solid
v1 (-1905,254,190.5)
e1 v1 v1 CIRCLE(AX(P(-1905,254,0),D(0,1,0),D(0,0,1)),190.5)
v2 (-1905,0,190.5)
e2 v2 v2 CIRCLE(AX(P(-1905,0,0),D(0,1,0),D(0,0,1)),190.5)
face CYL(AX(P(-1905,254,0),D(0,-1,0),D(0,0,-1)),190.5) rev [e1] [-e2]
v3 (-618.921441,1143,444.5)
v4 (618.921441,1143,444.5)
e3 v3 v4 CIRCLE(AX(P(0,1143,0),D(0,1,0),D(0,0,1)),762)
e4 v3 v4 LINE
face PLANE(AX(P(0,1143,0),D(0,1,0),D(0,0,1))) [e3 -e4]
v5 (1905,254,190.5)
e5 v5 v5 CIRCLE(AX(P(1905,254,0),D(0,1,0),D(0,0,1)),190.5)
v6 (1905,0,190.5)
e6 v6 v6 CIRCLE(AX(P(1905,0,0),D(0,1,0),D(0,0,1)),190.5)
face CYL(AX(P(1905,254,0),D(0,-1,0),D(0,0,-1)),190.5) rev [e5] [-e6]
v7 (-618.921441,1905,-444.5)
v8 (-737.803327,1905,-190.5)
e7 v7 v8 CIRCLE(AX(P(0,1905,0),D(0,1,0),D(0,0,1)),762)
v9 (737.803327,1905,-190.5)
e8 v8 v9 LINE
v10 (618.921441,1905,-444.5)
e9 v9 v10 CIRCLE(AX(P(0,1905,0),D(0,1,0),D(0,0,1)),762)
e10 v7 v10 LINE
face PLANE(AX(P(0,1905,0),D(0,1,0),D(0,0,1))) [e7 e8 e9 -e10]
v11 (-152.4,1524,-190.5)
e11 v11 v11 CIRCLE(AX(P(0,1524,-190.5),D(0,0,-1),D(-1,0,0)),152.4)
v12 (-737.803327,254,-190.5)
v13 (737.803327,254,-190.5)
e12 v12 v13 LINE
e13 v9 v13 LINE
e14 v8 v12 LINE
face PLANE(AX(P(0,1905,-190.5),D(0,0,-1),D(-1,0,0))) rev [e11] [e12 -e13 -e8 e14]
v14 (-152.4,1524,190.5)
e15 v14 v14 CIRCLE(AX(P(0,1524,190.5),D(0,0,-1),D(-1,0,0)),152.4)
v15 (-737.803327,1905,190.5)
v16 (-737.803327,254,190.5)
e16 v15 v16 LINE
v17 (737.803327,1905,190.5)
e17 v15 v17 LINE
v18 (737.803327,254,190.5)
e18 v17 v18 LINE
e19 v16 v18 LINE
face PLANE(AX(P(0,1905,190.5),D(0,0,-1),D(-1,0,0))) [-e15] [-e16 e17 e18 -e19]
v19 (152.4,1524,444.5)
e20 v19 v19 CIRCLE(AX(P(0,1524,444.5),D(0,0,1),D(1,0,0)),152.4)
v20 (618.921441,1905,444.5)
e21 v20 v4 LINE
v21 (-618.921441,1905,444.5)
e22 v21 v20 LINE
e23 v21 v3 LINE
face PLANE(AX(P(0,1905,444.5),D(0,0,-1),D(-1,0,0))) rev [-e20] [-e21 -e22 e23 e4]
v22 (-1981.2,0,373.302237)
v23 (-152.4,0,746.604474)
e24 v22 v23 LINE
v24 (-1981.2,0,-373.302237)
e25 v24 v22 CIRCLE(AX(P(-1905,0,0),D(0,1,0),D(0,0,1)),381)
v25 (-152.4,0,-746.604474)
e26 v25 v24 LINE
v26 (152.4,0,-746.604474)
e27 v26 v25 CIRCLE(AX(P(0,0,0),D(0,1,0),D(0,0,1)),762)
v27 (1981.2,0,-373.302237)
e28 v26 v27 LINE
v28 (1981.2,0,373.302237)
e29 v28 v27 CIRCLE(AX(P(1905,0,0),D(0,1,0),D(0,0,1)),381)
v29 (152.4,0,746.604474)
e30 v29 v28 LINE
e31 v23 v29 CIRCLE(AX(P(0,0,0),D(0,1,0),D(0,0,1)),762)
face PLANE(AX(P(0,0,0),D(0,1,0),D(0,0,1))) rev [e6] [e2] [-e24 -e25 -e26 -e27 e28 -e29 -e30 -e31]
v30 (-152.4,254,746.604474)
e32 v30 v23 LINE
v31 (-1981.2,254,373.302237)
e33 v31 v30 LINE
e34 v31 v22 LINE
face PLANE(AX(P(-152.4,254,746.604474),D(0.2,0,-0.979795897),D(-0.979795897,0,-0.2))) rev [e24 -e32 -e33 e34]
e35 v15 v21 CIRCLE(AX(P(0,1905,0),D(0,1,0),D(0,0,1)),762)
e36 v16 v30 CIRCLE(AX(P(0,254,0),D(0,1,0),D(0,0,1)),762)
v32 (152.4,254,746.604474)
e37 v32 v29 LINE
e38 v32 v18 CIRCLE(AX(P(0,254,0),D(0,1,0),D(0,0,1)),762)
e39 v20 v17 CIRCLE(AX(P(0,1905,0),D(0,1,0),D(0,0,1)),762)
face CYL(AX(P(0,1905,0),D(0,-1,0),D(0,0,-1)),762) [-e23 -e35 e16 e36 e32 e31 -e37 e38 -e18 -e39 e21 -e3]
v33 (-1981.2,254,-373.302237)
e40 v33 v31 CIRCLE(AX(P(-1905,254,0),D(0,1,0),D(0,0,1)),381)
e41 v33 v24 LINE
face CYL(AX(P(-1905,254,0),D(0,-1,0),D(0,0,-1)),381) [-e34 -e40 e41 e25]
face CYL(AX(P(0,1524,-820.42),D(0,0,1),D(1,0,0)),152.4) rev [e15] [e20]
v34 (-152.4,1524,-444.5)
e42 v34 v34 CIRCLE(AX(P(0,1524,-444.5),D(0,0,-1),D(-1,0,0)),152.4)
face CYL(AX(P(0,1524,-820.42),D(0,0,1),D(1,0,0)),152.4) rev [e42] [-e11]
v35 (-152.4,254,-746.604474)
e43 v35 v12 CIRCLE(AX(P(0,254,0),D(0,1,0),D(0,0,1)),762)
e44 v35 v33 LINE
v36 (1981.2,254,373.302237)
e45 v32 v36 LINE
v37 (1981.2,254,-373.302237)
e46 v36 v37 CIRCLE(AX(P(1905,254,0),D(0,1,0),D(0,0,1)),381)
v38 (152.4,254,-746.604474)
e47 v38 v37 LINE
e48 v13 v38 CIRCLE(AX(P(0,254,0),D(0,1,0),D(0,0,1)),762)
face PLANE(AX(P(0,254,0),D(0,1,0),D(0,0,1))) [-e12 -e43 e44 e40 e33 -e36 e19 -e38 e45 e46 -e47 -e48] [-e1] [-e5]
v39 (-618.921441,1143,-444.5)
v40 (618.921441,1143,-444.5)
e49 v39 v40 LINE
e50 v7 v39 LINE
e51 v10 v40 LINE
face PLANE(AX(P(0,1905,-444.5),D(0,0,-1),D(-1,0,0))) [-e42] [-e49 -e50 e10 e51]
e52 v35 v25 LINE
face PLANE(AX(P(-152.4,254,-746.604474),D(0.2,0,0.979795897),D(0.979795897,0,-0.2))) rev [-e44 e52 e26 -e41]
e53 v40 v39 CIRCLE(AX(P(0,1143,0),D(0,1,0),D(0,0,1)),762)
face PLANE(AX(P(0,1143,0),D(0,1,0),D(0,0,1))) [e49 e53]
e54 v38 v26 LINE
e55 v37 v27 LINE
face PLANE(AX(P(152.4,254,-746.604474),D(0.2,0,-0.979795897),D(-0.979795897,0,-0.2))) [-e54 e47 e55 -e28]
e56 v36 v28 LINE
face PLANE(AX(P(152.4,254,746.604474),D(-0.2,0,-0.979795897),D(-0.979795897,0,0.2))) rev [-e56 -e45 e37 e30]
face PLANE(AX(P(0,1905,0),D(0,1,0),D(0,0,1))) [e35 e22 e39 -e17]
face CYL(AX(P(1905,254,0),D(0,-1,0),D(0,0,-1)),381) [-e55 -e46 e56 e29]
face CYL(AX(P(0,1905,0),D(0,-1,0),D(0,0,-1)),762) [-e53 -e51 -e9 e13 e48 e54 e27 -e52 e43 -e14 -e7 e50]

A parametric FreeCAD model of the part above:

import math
import FreeCAD as App
import Part
import Sketcher
Q = App.Units.Quantity

doc = App.newDocument("Part")
body = doc.addObject("PartDesign::Body", "Body")

# Sketch on XZ plane
sketch1 = doc.addObject("Sketcher::SketchObject", "Sketch")
body.addObject(sketch1)
sketch1.AttachmentSupport = (doc.XZ_Plane, [""])
sketch1.MapMode = "FlatFace"
sketch1.addGeometry([
    Part.ArcOfCircle(Part.Circle(App.Vector(0, 0, 0), App.Vector(0, 0, 1), 762), math.radians(144), math.radians(166)),
    Part.LineSegment(App.Vector(-619, 444, 0), App.Vector(619, 444, 0)),
    Part.ArcOfCircle(Part.Circle(App.Vector(0, 0, 0), App.Vector(0, 0, 1), 762), math.radians(14), math.radians(36)),
    Part.LineSegment(App.Vector(738, 190, 0), App.Vector(-738, 190, 0)),
], False)
sketch1.addConstraint([
    Sketcher.Constraint("Coincident", 0, 1, 1, 1),
    Sketcher.Constraint("Coincident", 1, 2, 2, 2),
    Sketcher.Constraint("Coincident", 2, 1, 3, 1),
    Sketcher.Constraint("Coincident", 3, 2, 0, 2),
    Sketcher.Constraint("Horizontal", 1),
    Sketcher.Constraint("Horizontal", 3),
    Sketcher.Constraint("Coincident", 0, 3, -1, 1),
    Sketcher.Constraint("Coincident", 2, 3, -1, 1),
    Sketcher.Constraint("Equal", 0, 2),
    Sketcher.Constraint("Radius", 0, Q("30 in")),
    Sketcher.Constraint("DistanceY", 3, 2, 1, 2, Q("10 in")),
    Sketcher.Constraint("DistanceY", -1, 1, 1, 2, Q("17.5 in")),
])
pad1 = doc.addObject("PartDesign::Pad", "Pad")
body.addObject(pad1)
pad1.Profile = sketch1
pad1.Length = Q("75 in")
pad1.Reversed = True
body2 = doc.addObject("PartDesign::Body", "Body001")

# Sketch on XZ plane
sketch2 = doc.addObject("Sketcher::SketchObject", "Sketch001")
body2.addObject(sketch2)
sketch2.AttachmentSupport = (doc.getObject("XZ_Plane001"), [""])
sketch2.MapMode = "FlatFace"
sketch2.addGeometry([
    Part.LineSegment(App.Vector(619, -444, 0), App.Vector(-619, -444, 0)),
    Part.ArcOfCircle(Part.Circle(App.Vector(0, 0, 0), App.Vector(0, 0, 1), 762), math.radians(-166), math.radians(-144)),
    Part.LineSegment(App.Vector(-738, -190, 0), App.Vector(738, -190, 0)),
    Part.ArcOfCircle(Part.Circle(App.Vector(0, 0, 0), App.Vector(0, 0, 1), 762), math.radians(-36), math.radians(-14)),
], False)
sketch2.addConstraint([
    Sketcher.Constraint("Coincident", 0, 2, 1, 2),
    Sketcher.Constraint("Coincident", 1, 1, 2, 1),
    Sketcher.Constraint("Coincident", 2, 2, 3, 2),
    Sketcher.Constraint("Coincident", 3, 1, 0, 1),
    Sketcher.Constraint("Horizontal", 0),
    Sketcher.Constraint("Horizontal", 2),
    Sketcher.Constraint("Coincident", 1, 3, -1, 1),
    Sketcher.Constraint("Coincident", 3, 3, -1, 1),
    Sketcher.Constraint("Equal", 1, 3),
    Sketcher.Constraint("Radius", 1, Q("30 in")),
    Sketcher.Constraint("DistanceY", 0, 2, 2, 2, Q("10 in")),
    Sketcher.Constraint("DistanceY", 0, 2, -1, 1, Q("17.5 in")),
])
pad2 = doc.addObject("PartDesign::Pad", "Pad001")
body2.addObject(pad2)
pad2.Profile = sketch2
pad2.Length = Q("75 in")
pad2.Reversed = True
body.AllowCompound = True
doc.recompute()

boolean = doc.addObject("PartDesign::Boolean", "Boolean")
body.addObject(boolean)
boolean.Type = "Fuse"
boolean.addObjects([body2])

# Sketch on XZ plane
sketch3 = doc.addObject("Sketcher::SketchObject", "Sketch002")
body.addObject(sketch3)
sketch3.AttachmentSupport = (doc.XZ_Plane, [""])
sketch3.MapMode = "FlatFace"
sketch3.addGeometry([
    Part.ArcOfCircle(Part.Circle(App.Vector(0, 0, 0), App.Vector(0, 0, 1), 762), math.radians(102), math.radians(144)),  # 0
    Part.ArcOfCircle(Part.Circle(App.Vector(0, 0, 0), App.Vector(0, 0, 1), 762), math.radians(78), math.radians(102)),  # 1
    Part.ArcOfCircle(Part.Circle(App.Vector(0, 0, 0), App.Vector(0, 0, 1), 762), math.radians(36), math.radians(78)),  # 2
    Part.LineSegment(App.Vector(619, 444, 0), App.Vector(-619, 444, 0)),  # 3
    Part.ArcOfCircle(Part.Circle(App.Vector(0, 0, 0), App.Vector(0, 0, 1), 762), math.radians(-102), math.radians(-78)),  # 4
    Part.ArcOfCircle(Part.Circle(App.Vector(0, 0, 0), App.Vector(0, 0, 1), 762), math.radians(-144), math.radians(-102)),  # 5
    Part.LineSegment(App.Vector(-619, -444, 0), App.Vector(619, -444, 0)),  # 6
    Part.ArcOfCircle(Part.Circle(App.Vector(0, 0, 0), App.Vector(0, 0, 1), 762), math.radians(-78), math.radians(-36)),  # 7
], False)
sketch3.addConstraint([
    Sketcher.Constraint("Coincident", 0, 1, 1, 2),
    Sketcher.Constraint("Coincident", 1, 1, 2, 2),
    Sketcher.Constraint("Coincident", 2, 1, 3, 1),
    Sketcher.Constraint("Coincident", 3, 2, 0, 2),
    Sketcher.Constraint("Coincident", 4, 1, 5, 2),
    Sketcher.Constraint("Coincident", 5, 1, 6, 1),
    Sketcher.Constraint("Coincident", 6, 2, 7, 2),
    Sketcher.Constraint("Coincident", 7, 1, 4, 2),
    Sketcher.Constraint("Horizontal", 3),
    Sketcher.Constraint("Horizontal", 6),
    Sketcher.Constraint("Coincident", 0, 3, -1, 1),
    Sketcher.Constraint("Coincident", 1, 3, -1, 1),
    Sketcher.Constraint("Coincident", 2, 3, -1, 1),
    Sketcher.Constraint("Coincident", 4, 3, -1, 1),
    Sketcher.Constraint("Coincident", 5, 3, -1, 1),
    Sketcher.Constraint("Coincident", 7, 3, -1, 1),
    Sketcher.Constraint("Equal", 2, 4),
    Sketcher.Constraint("Horizontal", 0, 1, 1, 1),
    Sketcher.Constraint("Horizontal", 4, 1, 7, 1),
    Sketcher.Constraint("Vertical", 0, 1, 4, 1),
    Sketcher.Constraint("Equal", 3, 6),
    Sketcher.Constraint("Radius", 0, Q("30 in")),
    Sketcher.Constraint("DistanceX", 0, 1, -1, 1, Q("6 in")),
    Sketcher.Constraint("DistanceY", -1, 1, 3, 2, Q("17.5 in")),
])
pad3 = doc.addObject("PartDesign::Pad", "Pad002")
body.addObject(pad3)
pad3.Profile = sketch3
pad3.Length = Q("45 in")
pad3.Reversed = True

# Sketch on XZ plane
sketch4 = doc.addObject("Sketcher::SketchObject", "Sketch003")
body.addObject(sketch4)
sketch4.AttachmentSupport = (doc.XZ_Plane, [""])
sketch4.MapMode = "FlatFace"
sketch4.addGeometry([
    Part.ArcOfCircle(Part.Circle(App.Vector(0, 0, 0), App.Vector(0, 0, 1), 762), math.radians(-144), math.radians(-102)),  # 0
    Part.LineSegment(App.Vector(-152, -747, 0), App.Vector(-1981, -373, 0)),  # 1
    Part.ArcOfCircle(Part.Circle(App.Vector(-1905, 0, 0), App.Vector(0, 0, 1), 381), math.radians(102), math.radians(258)),  # 2
    Part.LineSegment(App.Vector(-1981, 373, 0), App.Vector(-152, 747, 0)),  # 3
    Part.ArcOfCircle(Part.Circle(App.Vector(0, 0, 0), App.Vector(0, 0, 1), 762), math.radians(102), math.radians(144)),  # 4
    Part.ArcOfCircle(Part.Circle(App.Vector(0, 0, 0), App.Vector(0, 0, 1), 762), math.radians(144), math.radians(166)),  # 5
    Part.LineSegment(App.Vector(-738, 190, 0), App.Vector(738, 190, 0)),  # 6
    Part.ArcOfCircle(Part.Circle(App.Vector(0, 0, 0), App.Vector(0, 0, 1), 762), math.radians(14), math.radians(36)),  # 7
    Part.ArcOfCircle(Part.Circle(App.Vector(0, 0, 0), App.Vector(0, 0, 1), 762), math.radians(36), math.radians(78)),  # 8
    Part.LineSegment(App.Vector(152, 747, 0), App.Vector(1981, 373, 0)),  # 9
    Part.ArcOfCircle(Part.Circle(App.Vector(1905, 0, 0), App.Vector(0, 0, 1), 381), math.radians(-78), math.radians(78)),  # 10
    Part.LineSegment(App.Vector(1981, -373, 0), App.Vector(152, -747, 0)),  # 11
    Part.ArcOfCircle(Part.Circle(App.Vector(0, 0, 0), App.Vector(0, 0, 1), 762), math.radians(-78), math.radians(-36)),  # 12
    Part.ArcOfCircle(Part.Circle(App.Vector(0, 0, 0), App.Vector(0, 0, 1), 762), math.radians(-36), math.radians(-14)),  # 13
    Part.LineSegment(App.Vector(738, -190, 0), App.Vector(-738, -190, 0)),  # 14
    Part.ArcOfCircle(Part.Circle(App.Vector(0, 0, 0), App.Vector(0, 0, 1), 762), math.radians(-166), math.radians(-144)),  # 15
    Part.Circle(App.Vector(-1905, 0, 0), App.Vector(0, 0, 1), 190),  # 16
    Part.Circle(App.Vector(1905, 0, 0), App.Vector(0, 0, 1), 190),  # 17
], False)
sketch4.addConstraint([
    Sketcher.Constraint("Coincident", 0, 2, 1, 1),
    Sketcher.Constraint("Tangent", 1, 2, 2, 2),
    Sketcher.Constraint("Tangent", 2, 1, 3, 1),
    Sketcher.Constraint("Coincident", 3, 2, 4, 1),
    Sketcher.Constraint("Coincident", 4, 2, 5, 1),
    Sketcher.Constraint("Coincident", 5, 2, 6, 1),
    Sketcher.Constraint("Coincident", 6, 2, 7, 1),
    Sketcher.Constraint("Coincident", 7, 2, 8, 1),
    Sketcher.Constraint("Coincident", 8, 2, 9, 1),
    Sketcher.Constraint("Tangent", 9, 2, 10, 2),
    Sketcher.Constraint("Tangent", 10, 1, 11, 1),
    Sketcher.Constraint("Coincident", 11, 2, 12, 1),
    Sketcher.Constraint("Coincident", 12, 2, 13, 1),
    Sketcher.Constraint("Coincident", 13, 2, 14, 1),
    Sketcher.Constraint("Coincident", 14, 2, 15, 1),
    Sketcher.Constraint("Coincident", 15, 2, 0, 1),
    Sketcher.Constraint("Horizontal", 6),
    Sketcher.Constraint("Horizontal", 14),
    Sketcher.Constraint("Coincident", 0, 3, -1, 1),
    Sketcher.Constraint("Coincident", 4, 3, -1, 1),
    Sketcher.Constraint("Coincident", 5, 3, -1, 1),
    Sketcher.Constraint("Coincident", 7, 3, -1, 1),
    Sketcher.Constraint("Coincident", 8, 3, -1, 1),
    Sketcher.Constraint("Coincident", 12, 3, -1, 1),
    Sketcher.Constraint("Coincident", 13, 3, -1, 1),
    Sketcher.Constraint("Coincident", 15, 3, -1, 1),
    Sketcher.Constraint("Coincident", 16, 3, 2, 3),
    Sketcher.Constraint("Coincident", 17, 3, 10, 3),
    Sketcher.Constraint("Equal", 0, 4),
    Sketcher.Constraint("Equal", 5, 7),
    Sketcher.Constraint("Equal", 2, 10),
    Sketcher.Constraint("Equal", 8, 12),
    Sketcher.Constraint("Equal", 16, 17),
    Sketcher.Constraint("Symmetric", 2, 3, 10, 3, -1, 1),
    Sketcher.Constraint("PointOnObject", 2, 3, -1),
    Sketcher.Constraint("Horizontal", 4, 2, 7, 2),
    Sketcher.Constraint("Horizontal", 12, 2, 15, 2),
    Sketcher.Constraint("Vertical", 7, 2, 12, 2),
    Sketcher.Constraint("Equal", 6, 14),
    Sketcher.Constraint("Equal", 1, 3),
    Sketcher.Constraint("Equal", 3, 9),
    Sketcher.Constraint("Equal", 9, 11),
    Sketcher.Constraint("Diameter", 16, Q("15 in")),
    Sketcher.Constraint("Radius", 0, Q("30 in")),
    Sketcher.Constraint("Radius", 2, Q("15 in")),
    Sketcher.Constraint("DistanceX", 2, 3, -1, 1, Q("75 in")),
    Sketcher.Constraint("DistanceX", 3, 2, -1, 1, Q("6 in")),
    Sketcher.Constraint("DistanceY", 5, 2, 4, 2, Q("10 in")),
    Sketcher.Constraint("DistanceY", -1, 1, 6, 2, Q("7.5 in")),
])
pad4 = doc.addObject("PartDesign::Pad", "Pad003")
body.addObject(pad4)
pad4.Profile = sketch4
pad4.Length = Q("10 in")
pad4.Reversed = True

# Sketch on XY plane
sketch5 = doc.addObject("Sketcher::SketchObject", "Sketch004")
body.addObject(sketch5)
sketch5.AttachmentSupport = (doc.XY_Plane, [""])
sketch5.MapMode = "FlatFace"
sketch5.AttachmentOffset = App.Placement(App.Vector(0, 0, 17.5 * 25.4), App.Rotation())
sketch5.addGeometry(Part.Circle(App.Vector(0, 1524, 0), App.Vector(0, 0, 1), 152), False)
sketch5.addConstraint([
    Sketcher.Constraint("PointOnObject", 0, 3, -2),
    Sketcher.Constraint("Diameter", 0, Q("12 in")),
    Sketcher.Constraint("DistanceY", -1, 1, 0, 3, Q("60 in")),
])
pocket1 = doc.addObject("PartDesign::Pocket", "Pocket")
body.addObject(pocket1)
pocket1.Profile = sketch5
pocket1.Length = Q("49.8 in")

doc.recompute()
